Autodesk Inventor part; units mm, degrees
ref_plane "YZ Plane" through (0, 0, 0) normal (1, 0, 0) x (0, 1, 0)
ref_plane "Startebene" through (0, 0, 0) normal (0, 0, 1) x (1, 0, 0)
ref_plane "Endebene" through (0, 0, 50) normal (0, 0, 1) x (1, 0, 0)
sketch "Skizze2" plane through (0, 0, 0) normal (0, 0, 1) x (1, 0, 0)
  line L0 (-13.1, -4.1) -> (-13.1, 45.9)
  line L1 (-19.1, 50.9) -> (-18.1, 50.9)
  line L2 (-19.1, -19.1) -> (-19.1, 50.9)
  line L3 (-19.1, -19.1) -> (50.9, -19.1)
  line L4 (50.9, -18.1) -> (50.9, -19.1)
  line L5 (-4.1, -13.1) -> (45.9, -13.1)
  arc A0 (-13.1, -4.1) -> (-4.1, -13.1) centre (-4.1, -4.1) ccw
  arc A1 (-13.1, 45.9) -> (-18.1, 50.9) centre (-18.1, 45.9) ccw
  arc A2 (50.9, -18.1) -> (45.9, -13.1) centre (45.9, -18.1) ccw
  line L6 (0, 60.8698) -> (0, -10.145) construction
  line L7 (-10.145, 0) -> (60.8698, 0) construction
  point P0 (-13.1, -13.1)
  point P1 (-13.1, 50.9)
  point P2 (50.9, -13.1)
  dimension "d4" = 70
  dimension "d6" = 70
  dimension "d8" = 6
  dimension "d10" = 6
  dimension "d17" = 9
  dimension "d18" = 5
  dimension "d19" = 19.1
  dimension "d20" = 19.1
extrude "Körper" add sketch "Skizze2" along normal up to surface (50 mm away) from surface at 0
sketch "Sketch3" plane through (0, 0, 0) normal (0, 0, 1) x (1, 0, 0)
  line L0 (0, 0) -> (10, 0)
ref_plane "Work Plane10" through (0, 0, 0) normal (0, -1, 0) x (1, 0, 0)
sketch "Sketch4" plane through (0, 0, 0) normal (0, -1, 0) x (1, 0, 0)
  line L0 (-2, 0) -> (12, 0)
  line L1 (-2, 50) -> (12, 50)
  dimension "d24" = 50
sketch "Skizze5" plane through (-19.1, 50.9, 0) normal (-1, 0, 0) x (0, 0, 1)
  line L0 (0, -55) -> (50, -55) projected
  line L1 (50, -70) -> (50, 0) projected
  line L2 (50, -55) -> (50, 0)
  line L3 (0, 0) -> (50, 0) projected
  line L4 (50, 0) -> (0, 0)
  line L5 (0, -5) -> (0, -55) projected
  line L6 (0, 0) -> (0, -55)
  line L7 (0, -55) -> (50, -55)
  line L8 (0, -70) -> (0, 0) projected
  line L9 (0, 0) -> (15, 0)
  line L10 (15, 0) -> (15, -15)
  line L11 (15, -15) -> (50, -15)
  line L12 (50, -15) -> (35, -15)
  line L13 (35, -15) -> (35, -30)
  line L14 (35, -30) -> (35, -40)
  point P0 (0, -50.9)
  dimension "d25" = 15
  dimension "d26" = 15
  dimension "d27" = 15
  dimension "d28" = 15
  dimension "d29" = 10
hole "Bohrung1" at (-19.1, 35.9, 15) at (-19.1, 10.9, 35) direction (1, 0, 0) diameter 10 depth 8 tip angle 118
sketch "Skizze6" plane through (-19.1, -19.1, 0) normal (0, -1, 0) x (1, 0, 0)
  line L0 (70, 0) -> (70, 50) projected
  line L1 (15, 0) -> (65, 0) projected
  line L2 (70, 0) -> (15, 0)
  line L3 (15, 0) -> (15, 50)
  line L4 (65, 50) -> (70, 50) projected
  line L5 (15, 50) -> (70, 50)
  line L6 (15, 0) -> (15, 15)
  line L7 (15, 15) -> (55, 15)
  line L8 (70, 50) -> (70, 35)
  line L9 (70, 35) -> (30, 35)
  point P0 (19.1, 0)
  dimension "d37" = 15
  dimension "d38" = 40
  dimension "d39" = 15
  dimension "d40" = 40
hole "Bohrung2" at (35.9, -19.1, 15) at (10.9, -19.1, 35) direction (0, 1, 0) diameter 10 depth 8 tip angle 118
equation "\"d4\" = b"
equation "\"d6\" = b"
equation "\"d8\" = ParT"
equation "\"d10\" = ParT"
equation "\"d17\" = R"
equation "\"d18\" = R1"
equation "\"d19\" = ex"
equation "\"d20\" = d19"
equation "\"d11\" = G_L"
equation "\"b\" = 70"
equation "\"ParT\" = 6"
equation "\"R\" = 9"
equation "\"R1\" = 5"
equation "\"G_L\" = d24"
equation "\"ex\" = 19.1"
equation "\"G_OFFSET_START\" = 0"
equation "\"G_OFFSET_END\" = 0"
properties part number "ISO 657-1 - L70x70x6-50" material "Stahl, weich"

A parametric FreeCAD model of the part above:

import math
import FreeCAD as App
import Part
import Sketcher

V = App.Vector
Q = App.Units.Quantity

doc = App.newDocument("Part")
params = doc.addObject("Spreadsheet::Sheet", "Params")
for row, (alias, value) in enumerate([
    ("sketch1_radius", "9 mm"),
    ("sketch1_radius2", "5 mm"),
    ("sketch1_width", "70 mm"),
    ("pad1_length", "50 mm"),
    ("sketch2_diameter", "10 mm"),
    ("hole_diameter", "10 mm"),
    ("hole_depth", "8 mm"),
    ("sketch3_diameter", "10 mm"),
    ("hole2_diameter", "10 mm"),
    ("hole2_depth", "8 mm"),
], start=1):
    params.set(f"A{row}", alias)
    params.set(f"B{row}", "=" + value)
    params.setAlias(f"B{row}", alias)

body = doc.addObject("PartDesign::Body", "Body")

sketch1 = body.newObject("Sketcher::SketchObject", "Sketch")
sketch1.AttachmentSupport = (doc.getObject("XY_Plane"), [""])
sketch1.MapMode = "FlatFace"
sketch1.addGeometry([
    Part.ArcOfCircle(Part.Circle(V(-4.1, -4.1, 0), V(0, 0, 1), 9), math.radians(180), math.radians(270)),
    Part.LineSegment(V(-13.1, -4.1, 0), V(-13.1, 45.9, 0)),
    Part.ArcOfCircle(Part.Circle(V(-18.1, 45.9, 0), V(0, 0, 1), 5), math.radians(0), math.radians(90)),
    Part.LineSegment(V(-18.1, 50.9, 0), V(-19.1, 50.9, 0)),
    Part.LineSegment(V(-19.1, 50.9, 0), V(-19.1, -19.1, 0)),
    Part.LineSegment(V(-19.1, -19.1, 0), V(50.9, -19.1, 0)),
    Part.LineSegment(V(50.9, -19.1, 0), V(50.9, -18.1, 0)),
    Part.ArcOfCircle(Part.Circle(V(45.9, -18.1, 0), V(0, 0, 1), 5), math.radians(0), math.radians(90)),
    Part.LineSegment(V(45.9, -13.1, 0), V(-4.1, -13.1, 0)),
], False)
sketch1.addConstraint([
    Sketcher.Constraint("Tangent", 0, 1, 1, 1),
    Sketcher.Constraint("Tangent", 1, 2, 2, 1),
    Sketcher.Constraint("Tangent", 2, 2, 3, 1),
    Sketcher.Constraint("Coincident", 3, 2, 4, 1),
    Sketcher.Constraint("Coincident", 4, 2, 5, 1),
    Sketcher.Constraint("Coincident", 5, 2, 6, 1),
    Sketcher.Constraint("Tangent", 6, 2, 7, 1),
    Sketcher.Constraint("Tangent", 7, 2, 8, 1),
    Sketcher.Constraint("Tangent", 8, 2, 0, 2),
    Sketcher.Constraint("Vertical", 1),
    Sketcher.Constraint("Horizontal", 3),
    Sketcher.Constraint("Vertical", 4),
    Sketcher.Constraint("Horizontal", 5),
    Sketcher.Constraint("Vertical", 6),
    Sketcher.Constraint("Horizontal", 8),
    Sketcher.Constraint("Equal", 2, 7),
    Sketcher.Constraint("Equal", 8, 1),
    Sketcher.Constraint("Equal", 5, 4),
    Sketcher.Constraint("Radius", 0, Q("9 mm")),
    Sketcher.Constraint("Radius", 2, Q("5 mm")),
    Sketcher.Constraint("DistanceX", 5, 1, 5, 2, Q("70 mm")),
    Sketcher.Constraint("DistanceX", 3, 2, 1, 2, Q("6 mm")),
    Sketcher.Constraint("DistanceX", 3, 2, -1, 1, Q("19.1 mm")),
    Sketcher.Constraint("DistanceY", 4, 2, -1, 1, Q("19.1 mm")),
])
sketch1.setExpression("Constraints[18]", "Params.sketch1_radius")
sketch1.setExpression("Constraints[19]", "Params.sketch1_radius2")
sketch1.setExpression("Constraints[20]", "Params.sketch1_width")
pad1 = body.newObject("PartDesign::Pad", "Pad")
pad1.Profile = sketch1
pad1.setExpression("Length", "Params.pad1_length")

sketch2 = body.newObject("Sketcher::SketchObject", "Sketch001")
sketch2.AttachmentSupport = (doc.getObject("YZ_Plane"), [""])
sketch2.MapMode = "FlatFace"
sketch2.AttachmentOffset = App.Placement(V(0, 0, -19.1), App.Rotation())
sketch2.addGeometry([
    Part.Circle(V(36, 15, 0), V(0, 0, 1), 5),
    Part.Circle(V(11, 35, 0), V(0, 0, 1), 5),
], False)
sketch2.addConstraint([
    Sketcher.Constraint("Equal", 0, 1),
    Sketcher.Constraint("Diameter", 0, Q("10 mm")),
    Sketcher.Constraint("DistanceY", -1, 1, 0, 3, Q("15 mm")),
    Sketcher.Constraint("DistanceY", -1, 1, 1, 3, Q("35 mm")),
    Sketcher.Constraint("DistanceX", 1, 3, 0, 3, Q("25 mm")),
    Sketcher.Constraint("DistanceX", -1, 1, 0, 3, Q("35.9 mm")),
])
sketch2.setExpression("Constraints[1]", "Params.sketch2_diameter")
doc.recompute()
hole = body.newObject("PartDesign::Hole", "Hole")
hole.Profile = sketch2
hole.ThreadType = "None"
hole.setExpression("Diameter", "Params.hole_diameter")
hole.DepthType = "Dimension"
hole.setExpression("Depth", "Params.hole_depth")
hole.DrillPoint = "Angled"
hole.DrillPointAngle = 118
hole.Reversed = True

sketch3 = body.newObject("Sketcher::SketchObject", "Sketch002")
sketch3.AttachmentSupport = (doc.getObject("XZ_Plane"), [""])
sketch3.MapMode = "FlatFace"
sketch3.AttachmentOffset = App.Placement(V(0, 0, 19.1), App.Rotation())
sketch3.addGeometry([
    Part.Circle(V(36, 15, 0), V(0, 0, 1), 5),
    Part.Circle(V(11, 35, 0), V(0, 0, 1), 5),
], False)
sketch3.addConstraint([
    Sketcher.Constraint("Equal", 0, 1),
    Sketcher.Constraint("Diameter", 0, Q("10 mm")),
    Sketcher.Constraint("DistanceY", -1, 1, 0, 3, Q("15 mm")),
    Sketcher.Constraint("DistanceY", -1, 1, 1, 3, Q("35 mm")),
    Sketcher.Constraint("DistanceX", 1, 3, 0, 3, Q("25 mm")),
    Sketcher.Constraint("DistanceX", -1, 1, 0, 3, Q("35.9 mm")),
])
sketch3.setExpression("Constraints[1]", "Params.sketch3_diameter")
doc.recompute()
hole2 = body.newObject("PartDesign::Hole", "Hole001")
hole2.Profile = sketch3
hole2.ThreadType = "None"
hole2.setExpression("Diameter", "Params.hole2_diameter")
hole2.DepthType = "Dimension"
hole2.setExpression("Depth", "Params.hole2_depth")
hole2.DrillPoint = "Angled"
hole2.DrillPointAngle = 118

doc.recompute()
